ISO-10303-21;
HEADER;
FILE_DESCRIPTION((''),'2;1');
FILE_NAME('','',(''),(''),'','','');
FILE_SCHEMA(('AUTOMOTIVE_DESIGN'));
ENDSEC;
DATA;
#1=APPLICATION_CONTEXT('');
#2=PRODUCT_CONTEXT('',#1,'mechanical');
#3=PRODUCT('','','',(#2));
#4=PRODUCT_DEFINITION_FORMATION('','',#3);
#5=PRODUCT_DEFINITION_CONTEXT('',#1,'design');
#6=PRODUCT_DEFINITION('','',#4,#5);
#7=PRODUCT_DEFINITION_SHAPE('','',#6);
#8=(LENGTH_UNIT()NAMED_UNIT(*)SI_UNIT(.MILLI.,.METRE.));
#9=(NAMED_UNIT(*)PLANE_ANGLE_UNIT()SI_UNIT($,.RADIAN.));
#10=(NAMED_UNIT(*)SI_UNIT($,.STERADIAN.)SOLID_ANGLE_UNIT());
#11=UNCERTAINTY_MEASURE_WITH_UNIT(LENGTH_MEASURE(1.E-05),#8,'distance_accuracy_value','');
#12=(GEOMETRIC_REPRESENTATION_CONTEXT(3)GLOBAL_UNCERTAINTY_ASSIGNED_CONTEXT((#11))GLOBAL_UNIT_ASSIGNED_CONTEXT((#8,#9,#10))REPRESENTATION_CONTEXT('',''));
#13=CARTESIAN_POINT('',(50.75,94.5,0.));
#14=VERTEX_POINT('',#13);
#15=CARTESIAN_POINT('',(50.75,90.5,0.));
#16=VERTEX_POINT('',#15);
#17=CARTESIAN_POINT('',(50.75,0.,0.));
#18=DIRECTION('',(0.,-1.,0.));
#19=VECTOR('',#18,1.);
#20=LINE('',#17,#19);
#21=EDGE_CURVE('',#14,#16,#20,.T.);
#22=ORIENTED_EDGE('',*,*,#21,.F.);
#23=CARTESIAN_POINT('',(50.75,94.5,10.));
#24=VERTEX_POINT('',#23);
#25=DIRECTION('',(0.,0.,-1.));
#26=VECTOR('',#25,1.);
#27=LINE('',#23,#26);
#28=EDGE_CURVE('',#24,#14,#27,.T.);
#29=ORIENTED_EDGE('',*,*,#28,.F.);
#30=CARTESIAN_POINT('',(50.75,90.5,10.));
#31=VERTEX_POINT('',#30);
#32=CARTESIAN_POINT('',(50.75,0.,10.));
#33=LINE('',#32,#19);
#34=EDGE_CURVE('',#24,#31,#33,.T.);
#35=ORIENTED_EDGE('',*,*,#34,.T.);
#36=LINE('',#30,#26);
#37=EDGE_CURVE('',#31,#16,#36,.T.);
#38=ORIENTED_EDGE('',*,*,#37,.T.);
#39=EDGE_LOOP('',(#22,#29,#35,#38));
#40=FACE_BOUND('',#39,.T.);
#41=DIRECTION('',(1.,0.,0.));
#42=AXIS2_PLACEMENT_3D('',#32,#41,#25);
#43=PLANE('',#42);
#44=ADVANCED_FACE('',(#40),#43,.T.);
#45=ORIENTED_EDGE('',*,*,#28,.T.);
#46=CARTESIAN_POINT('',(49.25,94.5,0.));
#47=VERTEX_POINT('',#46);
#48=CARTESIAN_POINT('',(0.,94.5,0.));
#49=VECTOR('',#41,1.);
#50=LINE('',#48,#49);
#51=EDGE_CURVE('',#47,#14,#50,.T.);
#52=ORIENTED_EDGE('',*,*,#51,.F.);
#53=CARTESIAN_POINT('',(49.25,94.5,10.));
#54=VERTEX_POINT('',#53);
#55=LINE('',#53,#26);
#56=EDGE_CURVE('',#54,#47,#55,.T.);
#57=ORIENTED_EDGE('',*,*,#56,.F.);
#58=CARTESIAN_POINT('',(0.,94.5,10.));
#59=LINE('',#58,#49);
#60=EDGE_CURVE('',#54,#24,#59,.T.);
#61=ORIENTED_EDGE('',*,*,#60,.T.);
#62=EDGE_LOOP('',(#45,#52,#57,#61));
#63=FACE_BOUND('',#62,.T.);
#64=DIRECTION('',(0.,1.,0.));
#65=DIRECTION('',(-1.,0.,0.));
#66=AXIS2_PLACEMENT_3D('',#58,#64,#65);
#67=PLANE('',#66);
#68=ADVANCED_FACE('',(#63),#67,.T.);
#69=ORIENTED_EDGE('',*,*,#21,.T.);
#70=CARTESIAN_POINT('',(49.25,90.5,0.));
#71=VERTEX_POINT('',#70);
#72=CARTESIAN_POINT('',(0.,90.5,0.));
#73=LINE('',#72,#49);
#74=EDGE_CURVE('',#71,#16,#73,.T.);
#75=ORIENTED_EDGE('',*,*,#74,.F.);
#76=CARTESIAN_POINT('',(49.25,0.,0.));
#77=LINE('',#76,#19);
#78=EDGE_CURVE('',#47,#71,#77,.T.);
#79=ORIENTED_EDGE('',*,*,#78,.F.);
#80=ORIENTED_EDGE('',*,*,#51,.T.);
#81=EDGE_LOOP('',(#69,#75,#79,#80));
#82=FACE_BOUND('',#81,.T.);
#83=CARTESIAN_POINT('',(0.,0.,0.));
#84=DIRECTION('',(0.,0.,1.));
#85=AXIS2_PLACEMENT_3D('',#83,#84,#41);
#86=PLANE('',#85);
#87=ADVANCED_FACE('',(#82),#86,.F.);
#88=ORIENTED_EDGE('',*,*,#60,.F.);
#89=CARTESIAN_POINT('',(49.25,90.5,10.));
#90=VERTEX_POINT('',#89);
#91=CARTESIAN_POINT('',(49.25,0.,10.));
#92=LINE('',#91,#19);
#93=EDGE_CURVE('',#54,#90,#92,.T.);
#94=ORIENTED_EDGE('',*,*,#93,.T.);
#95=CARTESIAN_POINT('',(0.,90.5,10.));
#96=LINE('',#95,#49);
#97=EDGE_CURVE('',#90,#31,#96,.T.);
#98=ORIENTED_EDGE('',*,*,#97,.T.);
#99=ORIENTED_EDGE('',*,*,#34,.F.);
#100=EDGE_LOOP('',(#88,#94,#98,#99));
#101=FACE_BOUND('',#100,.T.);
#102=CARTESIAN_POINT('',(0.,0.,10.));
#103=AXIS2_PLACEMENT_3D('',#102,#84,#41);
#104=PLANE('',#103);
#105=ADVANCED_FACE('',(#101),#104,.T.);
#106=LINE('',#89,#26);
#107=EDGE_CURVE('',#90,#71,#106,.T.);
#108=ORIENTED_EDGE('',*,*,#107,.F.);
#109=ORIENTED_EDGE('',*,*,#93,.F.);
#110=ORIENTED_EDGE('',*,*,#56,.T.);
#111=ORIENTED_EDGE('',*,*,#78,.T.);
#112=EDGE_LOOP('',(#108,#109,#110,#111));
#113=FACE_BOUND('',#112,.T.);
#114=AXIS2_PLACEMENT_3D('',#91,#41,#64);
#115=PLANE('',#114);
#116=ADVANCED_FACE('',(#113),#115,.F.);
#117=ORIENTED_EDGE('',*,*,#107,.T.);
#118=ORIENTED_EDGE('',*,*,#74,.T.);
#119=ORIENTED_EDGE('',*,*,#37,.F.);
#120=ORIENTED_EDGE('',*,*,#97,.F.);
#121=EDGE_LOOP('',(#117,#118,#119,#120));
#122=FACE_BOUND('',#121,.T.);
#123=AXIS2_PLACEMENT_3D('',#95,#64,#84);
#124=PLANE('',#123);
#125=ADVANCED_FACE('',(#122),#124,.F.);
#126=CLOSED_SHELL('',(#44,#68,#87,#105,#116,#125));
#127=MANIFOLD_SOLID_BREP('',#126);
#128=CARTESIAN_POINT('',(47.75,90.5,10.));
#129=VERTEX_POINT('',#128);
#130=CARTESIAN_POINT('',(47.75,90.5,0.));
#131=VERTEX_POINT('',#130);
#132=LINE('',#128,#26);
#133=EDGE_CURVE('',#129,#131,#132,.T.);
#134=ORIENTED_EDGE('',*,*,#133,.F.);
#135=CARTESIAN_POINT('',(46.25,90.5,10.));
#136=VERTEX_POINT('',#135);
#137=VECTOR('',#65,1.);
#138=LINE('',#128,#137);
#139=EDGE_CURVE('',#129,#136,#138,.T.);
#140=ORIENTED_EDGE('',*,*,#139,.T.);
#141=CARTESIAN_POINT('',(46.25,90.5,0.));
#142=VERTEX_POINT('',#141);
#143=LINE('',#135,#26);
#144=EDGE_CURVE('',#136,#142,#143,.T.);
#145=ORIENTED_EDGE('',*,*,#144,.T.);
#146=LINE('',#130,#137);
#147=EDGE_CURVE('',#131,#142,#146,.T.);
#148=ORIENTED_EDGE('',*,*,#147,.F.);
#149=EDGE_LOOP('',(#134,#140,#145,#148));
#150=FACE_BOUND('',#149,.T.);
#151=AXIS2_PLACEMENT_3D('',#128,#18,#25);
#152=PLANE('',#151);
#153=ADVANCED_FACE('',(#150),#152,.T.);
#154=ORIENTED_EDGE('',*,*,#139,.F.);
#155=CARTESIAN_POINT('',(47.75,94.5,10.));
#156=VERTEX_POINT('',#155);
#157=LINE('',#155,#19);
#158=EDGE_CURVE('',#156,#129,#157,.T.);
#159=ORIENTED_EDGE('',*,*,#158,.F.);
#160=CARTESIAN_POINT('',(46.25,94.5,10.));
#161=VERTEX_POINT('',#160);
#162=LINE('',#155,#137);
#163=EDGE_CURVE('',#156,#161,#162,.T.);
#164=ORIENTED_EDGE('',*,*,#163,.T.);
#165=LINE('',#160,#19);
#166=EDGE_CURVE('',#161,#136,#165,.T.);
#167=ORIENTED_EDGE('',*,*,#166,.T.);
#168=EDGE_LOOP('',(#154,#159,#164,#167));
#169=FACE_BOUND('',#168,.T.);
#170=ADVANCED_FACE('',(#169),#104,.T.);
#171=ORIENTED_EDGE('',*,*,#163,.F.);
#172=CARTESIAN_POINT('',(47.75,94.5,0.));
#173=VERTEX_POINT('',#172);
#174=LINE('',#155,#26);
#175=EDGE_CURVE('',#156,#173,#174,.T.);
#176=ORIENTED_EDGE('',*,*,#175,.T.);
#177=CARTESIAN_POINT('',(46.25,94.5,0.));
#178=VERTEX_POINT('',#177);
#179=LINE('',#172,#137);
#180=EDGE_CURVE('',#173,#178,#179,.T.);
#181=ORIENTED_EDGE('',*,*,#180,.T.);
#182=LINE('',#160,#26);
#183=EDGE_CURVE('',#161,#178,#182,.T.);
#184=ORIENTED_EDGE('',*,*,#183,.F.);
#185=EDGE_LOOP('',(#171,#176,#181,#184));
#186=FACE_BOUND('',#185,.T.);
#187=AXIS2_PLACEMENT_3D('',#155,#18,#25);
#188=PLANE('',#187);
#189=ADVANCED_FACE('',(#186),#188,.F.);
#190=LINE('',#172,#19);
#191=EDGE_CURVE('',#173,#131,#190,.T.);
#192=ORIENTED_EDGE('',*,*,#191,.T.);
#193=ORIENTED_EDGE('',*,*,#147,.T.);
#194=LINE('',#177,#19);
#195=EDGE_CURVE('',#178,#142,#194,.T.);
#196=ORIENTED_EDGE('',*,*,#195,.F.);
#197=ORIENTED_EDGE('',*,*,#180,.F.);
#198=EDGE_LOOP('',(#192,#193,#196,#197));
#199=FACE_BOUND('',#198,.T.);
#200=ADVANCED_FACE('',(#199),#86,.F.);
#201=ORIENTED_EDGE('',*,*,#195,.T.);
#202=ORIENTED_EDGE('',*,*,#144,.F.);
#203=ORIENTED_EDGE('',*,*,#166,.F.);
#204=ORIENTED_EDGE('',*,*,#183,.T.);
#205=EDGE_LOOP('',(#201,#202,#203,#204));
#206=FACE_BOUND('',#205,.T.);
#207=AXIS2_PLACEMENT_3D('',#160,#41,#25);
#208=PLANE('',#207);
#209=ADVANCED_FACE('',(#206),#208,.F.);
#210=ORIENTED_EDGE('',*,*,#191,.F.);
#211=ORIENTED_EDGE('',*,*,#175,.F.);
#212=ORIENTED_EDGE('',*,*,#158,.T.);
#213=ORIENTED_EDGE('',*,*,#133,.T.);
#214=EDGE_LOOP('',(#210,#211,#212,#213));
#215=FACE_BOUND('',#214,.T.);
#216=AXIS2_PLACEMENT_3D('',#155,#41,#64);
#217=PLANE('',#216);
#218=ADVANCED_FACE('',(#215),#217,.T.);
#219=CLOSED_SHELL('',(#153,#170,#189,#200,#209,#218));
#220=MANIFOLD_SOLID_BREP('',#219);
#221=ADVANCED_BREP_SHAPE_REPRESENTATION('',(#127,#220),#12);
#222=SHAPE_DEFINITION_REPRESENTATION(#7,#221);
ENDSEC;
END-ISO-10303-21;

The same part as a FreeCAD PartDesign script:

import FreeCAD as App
import Part
import Sketcher

doc = App.newDocument("Part")
body = doc.addObject("PartDesign::Body", "Body")

# Sketch on XY plane
sketch1 = body.newObject("Sketcher::SketchObject", "Sketch")
sketch1.AttachmentSupport = (doc.getObject("XY_Plane"), [""])
sketch1.MapMode = "FlatFace"
sketch1.addGeometry([
    Part.LineSegment(App.Vector(49.25, 94.5, 0), App.Vector(49.25, 90.5, 0)),
    Part.LineSegment(App.Vector(49.25, 90.5, 0), App.Vector(50.75, 90.5, 0)),
    Part.LineSegment(App.Vector(50.75, 90.5, 0), App.Vector(50.75, 94.5, 0)),
    Part.LineSegment(App.Vector(50.75, 94.5, 0), App.Vector(49.25, 94.5, 0)),
], False)
sketch1.addConstraint([
    Sketcher.Constraint("Coincident", 0, 2, 1, 1),
    Sketcher.Constraint("Coincident", 1, 2, 2, 1),
    Sketcher.Constraint("Coincident", 2, 2, 3, 1),
    Sketcher.Constraint("Coincident", 3, 2, 0, 1),
    Sketcher.Constraint("Vertical", 0),
    Sketcher.Constraint("Horizontal", 1),
    Sketcher.Constraint("Vertical", 2),
    Sketcher.Constraint("Horizontal", 3),
    Sketcher.Constraint("DistanceY", 0, 2, 0, 1, 4.0),
    Sketcher.Constraint("DistanceX", 1, 1, 1, 2, 1.5),
    Sketcher.Constraint("DistanceY", -1, 1, 0, 2, 90.5),
    Sketcher.Constraint("DistanceX", -1, 1, 0, 2, 49.25),
])
pad1 = body.newObject("PartDesign::Pad", "Pad")
pad1.Profile = sketch1
pad1.Length = 10
body2 = doc.addObject("PartDesign::Body", "Body001")

# Sketch on XY plane
sketch2 = body2.newObject("Sketcher::SketchObject", "Sketch001")
sketch2.AttachmentSupport = (doc.getObject("XY_Plane001"), [""])
sketch2.MapMode = "FlatFace"
sketch2.addGeometry([
    Part.LineSegment(App.Vector(46.25, 94.5, 0), App.Vector(46.25, 90.5, 0)),
    Part.LineSegment(App.Vector(46.25, 90.5, 0), App.Vector(47.75, 90.5, 0)),
    Part.LineSegment(App.Vector(47.75, 90.5, 0), App.Vector(47.75, 94.5, 0)),
    Part.LineSegment(App.Vector(47.75, 94.5, 0), App.Vector(46.25, 94.5, 0)),
], False)
sketch2.addConstraint([
    Sketcher.Constraint("Coincident", 0, 2, 1, 1),
    Sketcher.Constraint("Coincident", 1, 2, 2, 1),
    Sketcher.Constraint("Coincident", 2, 2, 3, 1),
    Sketcher.Constraint("Coincident", 3, 2, 0, 1),
    Sketcher.Constraint("Vertical", 0),
    Sketcher.Constraint("Horizontal", 1),
    Sketcher.Constraint("Vertical", 2),
    Sketcher.Constraint("Horizontal", 3),
    Sketcher.Constraint("DistanceY", 0, 2, 0, 1, 4.0),
    Sketcher.Constraint("DistanceX", 1, 1, 1, 2, 1.5),
    Sketcher.Constraint("DistanceY", -1, 1, 0, 2, 90.5),
    Sketcher.Constraint("DistanceX", -1, 1, 0, 2, 46.25),
])
pad2 = body2.newObject("PartDesign::Pad", "Pad001")
pad2.Profile = sketch2
pad2.Length = 10

doc.recompute()
